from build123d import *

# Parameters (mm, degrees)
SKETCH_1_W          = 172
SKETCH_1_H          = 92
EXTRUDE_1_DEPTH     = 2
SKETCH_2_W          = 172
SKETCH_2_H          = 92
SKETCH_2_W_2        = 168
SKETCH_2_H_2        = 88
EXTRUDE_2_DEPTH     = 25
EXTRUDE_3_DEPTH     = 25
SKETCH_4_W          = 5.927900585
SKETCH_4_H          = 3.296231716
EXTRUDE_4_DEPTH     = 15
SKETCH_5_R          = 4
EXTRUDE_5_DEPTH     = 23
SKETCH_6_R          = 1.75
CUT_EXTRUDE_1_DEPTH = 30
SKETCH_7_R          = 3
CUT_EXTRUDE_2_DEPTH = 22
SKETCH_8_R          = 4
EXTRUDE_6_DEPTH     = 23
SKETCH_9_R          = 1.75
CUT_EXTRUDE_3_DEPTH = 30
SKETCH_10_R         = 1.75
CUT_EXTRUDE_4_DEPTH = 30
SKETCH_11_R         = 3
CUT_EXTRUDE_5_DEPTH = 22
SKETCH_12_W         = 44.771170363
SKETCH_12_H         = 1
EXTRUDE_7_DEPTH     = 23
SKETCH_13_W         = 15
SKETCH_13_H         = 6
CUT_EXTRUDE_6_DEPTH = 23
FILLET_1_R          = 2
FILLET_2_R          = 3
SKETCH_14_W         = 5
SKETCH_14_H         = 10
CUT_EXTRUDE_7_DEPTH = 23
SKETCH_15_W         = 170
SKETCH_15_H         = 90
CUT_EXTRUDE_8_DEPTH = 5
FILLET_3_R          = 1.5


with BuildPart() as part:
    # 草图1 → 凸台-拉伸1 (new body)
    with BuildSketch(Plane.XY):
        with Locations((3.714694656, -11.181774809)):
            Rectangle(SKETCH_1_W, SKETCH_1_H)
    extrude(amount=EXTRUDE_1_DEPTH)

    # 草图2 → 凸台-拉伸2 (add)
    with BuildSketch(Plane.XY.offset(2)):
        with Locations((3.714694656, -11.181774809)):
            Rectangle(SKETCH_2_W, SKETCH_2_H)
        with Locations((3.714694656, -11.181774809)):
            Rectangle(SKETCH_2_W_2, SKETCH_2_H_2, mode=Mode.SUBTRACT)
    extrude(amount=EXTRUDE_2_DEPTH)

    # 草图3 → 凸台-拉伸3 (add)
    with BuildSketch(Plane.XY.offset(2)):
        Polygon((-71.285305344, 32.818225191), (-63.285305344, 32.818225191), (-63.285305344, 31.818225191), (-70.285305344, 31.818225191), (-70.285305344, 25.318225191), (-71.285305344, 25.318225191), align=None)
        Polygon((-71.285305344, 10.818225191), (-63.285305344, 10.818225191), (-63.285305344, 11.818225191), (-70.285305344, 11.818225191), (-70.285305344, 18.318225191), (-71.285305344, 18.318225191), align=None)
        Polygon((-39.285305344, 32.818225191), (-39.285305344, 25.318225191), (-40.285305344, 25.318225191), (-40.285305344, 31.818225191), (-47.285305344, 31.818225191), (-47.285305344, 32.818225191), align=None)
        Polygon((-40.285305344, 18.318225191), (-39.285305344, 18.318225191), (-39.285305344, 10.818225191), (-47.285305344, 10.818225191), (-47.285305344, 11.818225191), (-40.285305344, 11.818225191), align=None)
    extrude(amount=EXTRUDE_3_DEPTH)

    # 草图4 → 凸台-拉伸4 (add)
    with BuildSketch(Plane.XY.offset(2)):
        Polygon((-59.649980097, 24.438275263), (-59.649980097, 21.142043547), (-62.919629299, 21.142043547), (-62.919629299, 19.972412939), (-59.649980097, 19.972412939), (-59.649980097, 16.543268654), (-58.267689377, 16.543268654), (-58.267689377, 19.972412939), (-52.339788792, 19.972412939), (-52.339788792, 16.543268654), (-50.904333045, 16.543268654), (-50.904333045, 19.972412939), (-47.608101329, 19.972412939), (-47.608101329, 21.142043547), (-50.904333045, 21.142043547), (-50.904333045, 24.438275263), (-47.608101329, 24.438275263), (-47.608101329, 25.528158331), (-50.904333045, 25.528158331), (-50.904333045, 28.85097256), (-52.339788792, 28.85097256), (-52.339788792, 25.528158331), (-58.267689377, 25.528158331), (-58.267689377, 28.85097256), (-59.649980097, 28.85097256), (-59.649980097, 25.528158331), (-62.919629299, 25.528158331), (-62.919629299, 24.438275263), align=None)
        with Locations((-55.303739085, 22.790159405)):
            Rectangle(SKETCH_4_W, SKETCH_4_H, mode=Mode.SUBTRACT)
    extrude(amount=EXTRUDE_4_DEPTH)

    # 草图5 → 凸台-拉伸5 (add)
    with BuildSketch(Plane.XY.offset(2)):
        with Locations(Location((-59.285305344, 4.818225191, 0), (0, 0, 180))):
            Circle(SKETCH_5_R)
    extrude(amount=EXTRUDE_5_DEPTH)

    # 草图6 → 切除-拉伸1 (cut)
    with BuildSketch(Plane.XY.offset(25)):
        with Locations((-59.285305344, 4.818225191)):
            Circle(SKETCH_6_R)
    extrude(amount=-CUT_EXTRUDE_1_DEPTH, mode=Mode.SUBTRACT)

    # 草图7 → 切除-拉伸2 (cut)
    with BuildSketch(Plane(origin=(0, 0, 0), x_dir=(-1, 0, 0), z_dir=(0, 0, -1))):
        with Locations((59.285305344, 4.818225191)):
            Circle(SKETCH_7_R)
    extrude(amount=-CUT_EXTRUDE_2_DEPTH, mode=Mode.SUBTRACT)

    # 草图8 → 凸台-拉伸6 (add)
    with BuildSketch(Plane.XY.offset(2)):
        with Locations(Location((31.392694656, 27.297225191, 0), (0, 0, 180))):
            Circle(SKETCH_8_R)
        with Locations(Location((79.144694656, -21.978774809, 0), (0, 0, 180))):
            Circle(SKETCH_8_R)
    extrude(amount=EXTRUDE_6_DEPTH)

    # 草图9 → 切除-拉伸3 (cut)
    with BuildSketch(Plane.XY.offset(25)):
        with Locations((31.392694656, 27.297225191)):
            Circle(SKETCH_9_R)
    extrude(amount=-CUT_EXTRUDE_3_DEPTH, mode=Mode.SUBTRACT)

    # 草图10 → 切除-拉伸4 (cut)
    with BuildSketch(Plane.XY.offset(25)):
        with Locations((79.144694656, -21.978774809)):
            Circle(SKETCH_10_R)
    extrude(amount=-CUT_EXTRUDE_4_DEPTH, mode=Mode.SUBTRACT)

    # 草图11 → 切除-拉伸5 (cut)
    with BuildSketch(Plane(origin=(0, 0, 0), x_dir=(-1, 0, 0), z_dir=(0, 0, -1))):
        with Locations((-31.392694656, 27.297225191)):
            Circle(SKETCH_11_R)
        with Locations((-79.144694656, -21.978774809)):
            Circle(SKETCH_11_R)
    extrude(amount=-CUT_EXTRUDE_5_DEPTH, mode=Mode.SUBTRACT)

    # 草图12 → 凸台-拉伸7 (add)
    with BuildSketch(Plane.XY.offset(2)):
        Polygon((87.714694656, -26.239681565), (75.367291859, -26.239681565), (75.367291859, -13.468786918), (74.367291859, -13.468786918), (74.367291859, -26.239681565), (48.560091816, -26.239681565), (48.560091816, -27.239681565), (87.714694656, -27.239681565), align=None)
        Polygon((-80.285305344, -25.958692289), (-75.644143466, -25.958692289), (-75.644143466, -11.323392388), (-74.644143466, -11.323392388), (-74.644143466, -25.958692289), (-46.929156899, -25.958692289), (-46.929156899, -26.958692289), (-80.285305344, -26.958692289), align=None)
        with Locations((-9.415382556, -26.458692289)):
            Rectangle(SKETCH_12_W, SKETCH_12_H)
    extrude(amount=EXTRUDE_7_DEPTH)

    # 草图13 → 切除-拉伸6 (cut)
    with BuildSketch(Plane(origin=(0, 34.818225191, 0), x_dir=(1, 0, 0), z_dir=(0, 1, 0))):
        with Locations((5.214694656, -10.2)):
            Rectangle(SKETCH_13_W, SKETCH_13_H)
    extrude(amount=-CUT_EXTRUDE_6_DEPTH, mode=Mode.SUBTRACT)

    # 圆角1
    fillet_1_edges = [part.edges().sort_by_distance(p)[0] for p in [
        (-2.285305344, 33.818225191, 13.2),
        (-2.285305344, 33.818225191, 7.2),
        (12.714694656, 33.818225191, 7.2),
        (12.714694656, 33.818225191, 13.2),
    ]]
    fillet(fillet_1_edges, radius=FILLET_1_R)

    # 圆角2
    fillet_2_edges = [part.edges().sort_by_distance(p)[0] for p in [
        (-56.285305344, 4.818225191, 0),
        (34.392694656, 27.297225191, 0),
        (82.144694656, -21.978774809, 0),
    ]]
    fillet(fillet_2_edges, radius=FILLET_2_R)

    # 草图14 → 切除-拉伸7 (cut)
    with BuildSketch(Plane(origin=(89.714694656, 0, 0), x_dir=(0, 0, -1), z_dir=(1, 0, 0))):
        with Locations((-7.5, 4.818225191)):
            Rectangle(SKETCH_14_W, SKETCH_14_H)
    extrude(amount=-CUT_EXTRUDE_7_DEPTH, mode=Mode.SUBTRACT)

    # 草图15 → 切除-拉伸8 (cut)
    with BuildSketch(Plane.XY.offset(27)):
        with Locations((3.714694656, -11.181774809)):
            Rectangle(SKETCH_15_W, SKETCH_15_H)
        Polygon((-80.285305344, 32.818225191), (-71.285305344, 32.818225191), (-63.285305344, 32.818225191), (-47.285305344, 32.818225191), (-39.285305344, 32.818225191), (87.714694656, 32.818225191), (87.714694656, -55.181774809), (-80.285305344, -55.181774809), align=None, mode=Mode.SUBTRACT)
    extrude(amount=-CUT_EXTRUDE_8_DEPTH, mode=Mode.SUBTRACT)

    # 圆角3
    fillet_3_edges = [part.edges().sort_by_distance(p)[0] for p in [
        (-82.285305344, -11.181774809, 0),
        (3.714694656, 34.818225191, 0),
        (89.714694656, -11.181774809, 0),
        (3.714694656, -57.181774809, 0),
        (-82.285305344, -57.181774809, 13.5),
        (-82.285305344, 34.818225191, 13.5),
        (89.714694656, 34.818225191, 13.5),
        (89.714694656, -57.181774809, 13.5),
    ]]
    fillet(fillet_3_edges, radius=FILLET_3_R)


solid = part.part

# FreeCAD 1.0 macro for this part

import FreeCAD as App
import Part
import Sketcher
from FreeCAD import Vector


def edges_at(feature, points):
    """Names of the edges that pass closest to the given points."""
    edges = feature.Shape.Edges
    near = lambda p: min(range(len(edges)), key=lambda i: edges[i].distToShape(Part.Vertex(*p))[0])
    return sorted({f"Edge{near(p) + 1}" for p in points})

doc = App.newDocument("Part")
body = doc.addObject("PartDesign::Body", "Body")

# Sketch on XY plane
sketch1 = body.newObject("Sketcher::SketchObject", "Sketch")
sketch1.AttachmentSupport = (doc.getObject("XY_Plane"), [""])
sketch1.MapMode = "FlatFace"
sketch1.addGeometry(Part.LineSegment(Vector(-82, 35, 0), Vector(-82, -57, 0)), False)
sketch1.addGeometry(Part.LineSegment(Vector(-82, -57, 0), Vector(90, -57, 0)), False)
sketch1.addGeometry(Part.LineSegment(Vector(90, -57, 0), Vector(90, 35, 0)), False)
sketch1.addGeometry(Part.LineSegment(Vector(90, 35, 0), Vector(-82, 35, 0)), False)
sketch1.addConstraint(Sketcher.Constraint("Coincident", 0, 2, 1, 1))
sketch1.addConstraint(Sketcher.Constraint("Coincident", 1, 2, 2, 1))
sketch1.addConstraint(Sketcher.Constraint("Coincident", 2, 2, 3, 1))
sketch1.addConstraint(Sketcher.Constraint("Coincident", 3, 2, 0, 1))
sketch1.addConstraint(Sketcher.Constraint("Vertical", 0))
sketch1.addConstraint(Sketcher.Constraint("Horizontal", 1))
sketch1.addConstraint(Sketcher.Constraint("Vertical", 2))
sketch1.addConstraint(Sketcher.Constraint("Horizontal", 3))
sketch1.addConstraint(Sketcher.Constraint("DistanceX", 1, 1, 1, 2, 172.0))
sketch1.addConstraint(Sketcher.Constraint("DistanceY", 0, 2, 0, 1, 92.0))
sketch1.addConstraint(Sketcher.Constraint("DistanceX", 0, 2, -1, 1, 82.285305))
sketch1.addConstraint(Sketcher.Constraint("DistanceY", 0, 2, -1, 1, 57.181775))
pad1 = body.newObject("PartDesign::Pad", "Pad")
pad1.Profile = sketch1
pad1.Length = 2

# Sketch on XY plane
sketch2 = body.newObject("Sketcher::SketchObject", "Sketch001")
sketch2.AttachmentSupport = (doc.getObject("XY_Plane"), [""])
sketch2.MapMode = "FlatFace"
sketch2.AttachmentOffset = App.Placement(Vector(0, 0, 2), App.Rotation())
sketch2.addGeometry(Part.LineSegment(Vector(-82, 35, 0), Vector(-82, -57, 0)), False)
sketch2.addGeometry(Part.LineSegment(Vector(-82, -57, 0), Vector(90, -57, 0)), False)
sketch2.addGeometry(Part.LineSegment(Vector(90, -57, 0), Vector(90, 35, 0)), False)
sketch2.addGeometry(Part.LineSegment(Vector(90, 35, 0), Vector(-82, 35, 0)), False)
sketch2.addGeometry(Part.LineSegment(Vector(88, -55, 0), Vector(-80, -55, 0)), False)
sketch2.addGeometry(Part.LineSegment(Vector(-80, -55, 0), Vector(-80, 33, 0)), False)
sketch2.addGeometry(Part.LineSegment(Vector(-80, 33, 0), Vector(88, 33, 0)), False)
sketch2.addGeometry(Part.LineSegment(Vector(88, 33, 0), Vector(88, -55, 0)), False)
sketch2.addConstraint(Sketcher.Constraint("Coincident", 0, 2, 1, 1))
sketch2.addConstraint(Sketcher.Constraint("Coincident", 1, 2, 2, 1))
sketch2.addConstraint(Sketcher.Constraint("Coincident", 2, 2, 3, 1))
sketch2.addConstraint(Sketcher.Constraint("Coincident", 3, 2, 0, 1))
sketch2.addConstraint(Sketcher.Constraint("Coincident", 4, 2, 5, 1))
sketch2.addConstraint(Sketcher.Constraint("Coincident", 5, 2, 6, 1))
sketch2.addConstraint(Sketcher.Constraint("Coincident", 6, 2, 7, 1))
sketch2.addConstraint(Sketcher.Constraint("Coincident", 7, 2, 4, 1))
sketch2.addConstraint(Sketcher.Constraint("Vertical", 0))
sketch2.addConstraint(Sketcher.Constraint("Horizontal", 1))
sketch2.addConstraint(Sketcher.Constraint("Vertical", 2))
sketch2.addConstraint(Sketcher.Constraint("Horizontal", 3))
sketch2.addConstraint(Sketcher.Constraint("Horizontal", 4))
sketch2.addConstraint(Sketcher.Constraint("Vertical", 5))
sketch2.addConstraint(Sketcher.Constraint("Horizontal", 6))
sketch2.addConstraint(Sketcher.Constraint("Vertical", 7))
sketch2.addConstraint(Sketcher.Constraint("DistanceX", 1, 1, 1, 2, 172.0))
sketch2.addConstraint(Sketcher.Constraint("DistanceX", 4, 2, 4, 1, 168.0))
sketch2.addConstraint(Sketcher.Constraint("DistanceY", 0, 2, 0, 1, 92.0))
sketch2.addConstraint(Sketcher.Constraint("DistanceY", 5, 1, 5, 2, 88.0))
sketch2.addConstraint(Sketcher.Constraint("DistanceX", 0, 2, 4, 2, 2.0))
sketch2.addConstraint(Sketcher.Constraint("DistanceY", 0, 2, 4, 2, 2.0))
sketch2.addConstraint(Sketcher.Constraint("DistanceX", 0, 2, -1, 1, 82.285305))
sketch2.addConstraint(Sketcher.Constraint("DistanceY", 0, 2, -1, 1, 57.181775))
pad2 = body.newObject("PartDesign::Pad", "Pad001")
pad2.Profile = sketch2
pad2.Length = 25

# Sketch on XY plane
sketch3 = body.newObject("Sketcher::SketchObject", "Sketch002")
sketch3.AttachmentSupport = (doc.getObject("XY_Plane"), [""])
sketch3.MapMode = "FlatFace"
sketch3.AttachmentOffset = App.Placement(Vector(0, 0, 2), App.Rotation())
sketch3.addGeometry(Part.LineSegment(Vector(-63.3, 32.8, 0), Vector(-71.3, 32.8, 0)), False)
sketch3.addGeometry(Part.LineSegment(Vector(-71.3, 32.8, 0), Vector(-71.3, 25.3, 0)), False)
sketch3.addGeometry(Part.LineSegment(Vector(-71.3, 25.3, 0), Vector(-70.3, 25.3, 0)), False)
sketch3.addGeometry(Part.LineSegment(Vector(-70.3, 25.3, 0), Vector(-70.3, 31.8, 0)), False)
sketch3.addGeometry(Part.LineSegment(Vector(-70.3, 31.8, 0), Vector(-63.3, 31.8, 0)), False)
sketch3.addGeometry(Part.LineSegment(Vector(-63.3, 31.8, 0), Vector(-63.3, 32.8, 0)), False)
sketch3.addGeometry(Part.LineSegment(Vector(-71.3, 10.8, 0), Vector(-63.3, 10.8, 0)), False)
sketch3.addGeometry(Part.LineSegment(Vector(-63.3, 10.8, 0), Vector(-63.3, 11.8, 0)), False)
sketch3.addGeometry(Part.LineSegment(Vector(-63.3, 11.8, 0), Vector(-70.3, 11.8, 0)), False)
sketch3.addGeometry(Part.LineSegment(Vector(-70.3, 11.8, 0), Vector(-70.3, 18.3, 0)), False)
sketch3.addGeometry(Part.LineSegment(Vector(-70.3, 18.3, 0), Vector(-71.3, 18.3, 0)), False)
sketch3.addGeometry(Part.LineSegment(Vector(-71.3, 18.3, 0), Vector(-71.3, 10.8, 0)), False)
sketch3.addGeometry(Part.LineSegment(Vector(-39.3, 25.3, 0), Vector(-39.3, 32.8, 0)), False)
sketch3.addGeometry(Part.LineSegment(Vector(-39.3, 32.8, 0), Vector(-47.3, 32.8, 0)), False)
sketch3.addGeometry(Part.LineSegment(Vector(-47.3, 32.8, 0), Vector(-47.3, 31.8, 0)), False)
sketch3.addGeometry(Part.LineSegment(Vector(-47.3, 31.8, 0), Vector(-40.3, 31.8, 0)), False)
sketch3.addGeometry(Part.LineSegment(Vector(-40.3, 31.8, 0), Vector(-40.3, 25.3, 0)), False)
sketch3.addGeometry(Part.LineSegment(Vector(-40.3, 25.3, 0), Vector(-39.3, 25.3, 0)), False)
sketch3.addGeometry(Part.LineSegment(Vector(-39.3, 18.3, 0), Vector(-40.3, 18.3, 0)), False)
sketch3.addGeometry(Part.LineSegment(Vector(-40.3, 18.3, 0), Vector(-40.3, 11.8, 0)), False)
sketch3.addGeometry(Part.LineSegment(Vector(-40.3, 11.8, 0), Vector(-47.3, 11.8, 0)), False)
sketch3.addGeometry(Part.LineSegment(Vector(-47.3, 11.8, 0), Vector(-47.3, 10.8, 0)), False)
sketch3.addGeometry(Part.LineSegment(Vector(-47.3, 10.8, 0), Vector(-39.3, 10.8, 0)), False)
sketch3.addGeometry(Part.LineSegment(Vector(-39.3, 10.8, 0), Vector(-39.3, 18.3, 0)), False)
sketch3.addConstraint(Sketcher.Constraint("Coincident", 0, 2, 1, 1))
sketch3.addConstraint(Sketcher.Constraint("Coincident", 1, 2, 2, 1))
sketch3.addConstraint(Sketcher.Constraint("Coincident", 2, 2, 3, 1))
sketch3.addConstraint(Sketcher.Constraint("Coincident", 3, 2, 4, 1))
sketch3.addConstraint(Sketcher.Constraint("Coincident", 4, 2, 5, 1))
sketch3.addConstraint(Sketcher.Constraint("Coincident", 5, 2, 0, 1))
sketch3.addConstraint(Sketcher.Constraint("Coincident", 6, 2, 7, 1))
sketch3.addConstraint(Sketcher.Constraint("Coincident", 7, 2, 8, 1))
sketch3.addConstraint(Sketcher.Constraint("Coincident", 8, 2, 9, 1))
sketch3.addConstraint(Sketcher.Constraint("Coincident", 9, 2, 10, 1))
sketch3.addConstraint(Sketcher.Constraint("Coincident", 10, 2, 11, 1))
sketch3.addConstraint(Sketcher.Constraint("Coincident", 11, 2, 6, 1))
sketch3.addConstraint(Sketcher.Constraint("Coincident", 12, 2, 13, 1))
sketch3.addConstraint(Sketcher.Constraint("Coincident", 13, 2, 14, 1))
sketch3.addConstraint(Sketcher.Constraint("Coincident", 14, 2, 15, 1))
sketch3.addConstraint(Sketcher.Constraint("Coincident", 15, 2, 16, 1))
sketch3.addConstraint(Sketcher.Constraint("Coincident", 16, 2, 17, 1))
sketch3.addConstraint(Sketcher.Constraint("Coincident", 17, 2, 12, 1))
sketch3.addConstraint(Sketcher.Constraint("Coincident", 18, 2, 19, 1))
sketch3.addConstraint(Sketcher.Constraint("Coincident", 19, 2, 20, 1))
sketch3.addConstraint(Sketcher.Constraint("Coincident", 20, 2, 21, 1))
sketch3.addConstraint(Sketcher.Constraint("Coincident", 21, 2, 22, 1))
sketch3.addConstraint(Sketcher.Constraint("Coincident", 22, 2, 23, 1))
sketch3.addConstraint(Sketcher.Constraint("Coincident", 23, 2, 18, 1))
sketch3.addConstraint(Sketcher.Constraint("Horizontal", 0))
sketch3.addConstraint(Sketcher.Constraint("Vertical", 1))
sketch3.addConstraint(Sketcher.Constraint("Horizontal", 2))
sketch3.addConstraint(Sketcher.Constraint("Vertical", 3))
sketch3.addConstraint(Sketcher.Constraint("Horizontal", 4))
sketch3.addConstraint(Sketcher.Constraint("Vertical", 5))
sketch3.addConstraint(Sketcher.Constraint("Horizontal", 6))
sketch3.addConstraint(Sketcher.Constraint("Vertical", 7))
sketch3.addConstraint(Sketcher.Constraint("Horizontal", 8))
sketch3.addConstraint(Sketcher.Constraint("Vertical", 9))
sketch3.addConstraint(Sketcher.Constraint("Horizontal", 10))
sketch3.addConstraint(Sketcher.Constraint("Vertical", 11))
sketch3.addConstraint(Sketcher.Constraint("Vertical", 12))
sketch3.addConstraint(Sketcher.Constraint("Horizontal", 13))
sketch3.addConstraint(Sketcher.Constraint("Vertical", 14))
sketch3.addConstraint(Sketcher.Constraint("Horizontal", 15))
sketch3.addConstraint(Sketcher.Constraint("Vertical", 16))
sketch3.addConstraint(Sketcher.Constraint("Horizontal", 17))
sketch3.addConstraint(Sketcher.Constraint("Horizontal", 18))
sketch3.addConstraint(Sketcher.Constraint("Vertical", 19))
sketch3.addConstraint(Sketcher.Constraint("Horizontal", 20))
sketch3.addConstraint(Sketcher.Constraint("Vertical", 21))
sketch3.addConstraint(Sketcher.Constraint("Horizontal", 22))
sketch3.addConstraint(Sketcher.Constraint("Vertical", 23))
sketch3.addConstraint(Sketcher.Constraint("Horizontal", 5, 2, 12, 2))
sketch3.addConstraint(Sketcher.Constraint("Horizontal", 4, 2, 14, 2))
sketch3.addConstraint(Sketcher.Constraint("Horizontal", 2, 2, 16, 2))
sketch3.addConstraint(Sketcher.Constraint("Horizontal", 10, 2, 18, 2))
sketch3.addConstraint(Sketcher.Constraint("Horizontal", 8, 2, 19, 2))
sketch3.addConstraint(Sketcher.Constraint("Horizontal", 11, 2, 21, 2))
sketch3.addConstraint(Sketcher.Constraint("Vertical", 5, 2, 6, 2))
sketch3.addConstraint(Sketcher.Constraint("Vertical", 3, 2, 8, 2))
sketch3.addConstraint(Sketcher.Constraint("Vertical", 1, 2, 10, 2))
sketch3.addConstraint(Sketcher.Constraint("Vertical", 16, 2, 18, 2))
sketch3.addConstraint(Sketcher.Constraint("Vertical", 14, 2, 20, 2))
sketch3.addConstraint(Sketcher.Constraint("Vertical", 17, 2, 22, 2))
sketch3.addConstraint(Sketcher.Constraint("Equal", 6, 13))
sketch3.addConstraint(Sketcher.Constraint("Equal", 8, 15))
sketch3.addConstraint(Sketcher.Constraint("Equal", 18, 5))
sketch3.addConstraint(Sketcher.Constraint("Equal", 5, 7))
sketch3.addConstraint(Sketcher.Constraint("Equal", 3, 9))
sketch3.addConstraint(Sketcher.Constraint("DistanceX", 0, 2, 0, 1, 8.0))
sketch3.addConstraint(Sketcher.Constraint("DistanceX", 2, 1, 2, 2, 1.0))
sketch3.addConstraint(Sketcher.Constraint("DistanceY", 1, 2, 1, 1, 7.5))
sketch3.addConstraint(Sketcher.Constraint("DistanceY", 6, 2, 4, 2, 21.0))
sketch3.addConstraint(Sketcher.Constraint("DistanceX", 5, 2, 12, 2, 24.0))
sketch3.addConstraint(Sketcher.Constraint("DistanceX", 0, 2, -1, 1, 71.285305))
sketch3.addConstraint(Sketcher.Constraint("DistanceY", -1, 1, 0, 2, 32.818225))
pad3 = body.newObject("PartDesign::Pad", "Pad002")
pad3.Profile = sketch3
pad3.Length = 25

# Sketch on XY plane
sketch4 = body.newObject("Sketcher::SketchObject", "Sketch003")
sketch4.AttachmentSupport = (doc.getObject("XY_Plane"), [""])
sketch4.MapMode = "FlatFace"
sketch4.AttachmentOffset = App.Placement(Vector(0, 0, 2), App.Rotation())
sketch4.addGeometry(Part.LineSegment(Vector(-59.6, 24.4, 0), Vector(-59.6, 21.1, 0)), False)
sketch4.addGeometry(Part.LineSegment(Vector(-59.6, 21.1, 0), Vector(-62.9, 21.1, 0)), False)
sketch4.addGeometry(Part.LineSegment(Vector(-62.9, 21.1, 0), Vector(-62.9, 20, 0)), False)
sketch4.addGeometry(Part.LineSegment(Vector(-62.9, 20, 0), Vector(-59.6, 20, 0)), False)
sketch4.addGeometry(Part.LineSegment(Vector(-59.6, 20, 0), Vector(-59.6, 16.5, 0)), False)
sketch4.addGeometry(Part.LineSegment(Vector(-59.6, 16.5, 0), Vector(-58.3, 16.5, 0)), False)
sketch4.addGeometry(Part.LineSegment(Vector(-58.3, 16.5, 0), Vector(-58.3, 20, 0)), False)
sketch4.addGeometry(Part.LineSegment(Vector(-58.3, 20, 0), Vector(-52.3, 20, 0)), False)
sketch4.addGeometry(Part.LineSegment(Vector(-52.3, 20, 0), Vector(-52.3, 16.5, 0)), False)
sketch4.addGeometry(Part.LineSegment(Vector(-52.3, 16.5, 0), Vector(-50.9, 16.5, 0)), False)
sketch4.addGeometry(Part.LineSegment(Vector(-50.9, 16.5, 0), Vector(-50.9, 20, 0)), False)
sketch4.addGeometry(Part.LineSegment(Vector(-50.9, 20, 0), Vector(-47.6, 20, 0)), False)
sketch4.addGeometry(Part.LineSegment(Vector(-47.6, 20, 0), Vector(-47.6, 21.1, 0)), False)
sketch4.addGeometry(Part.LineSegment(Vector(-47.6, 21.1, 0), Vector(-50.9, 21.1, 0)), False)
sketch4.addGeometry(Part.LineSegment(Vector(-50.9, 21.1, 0), Vector(-50.9, 24.4, 0)), False)
sketch4.addGeometry(Part.LineSegment(Vector(-50.9, 24.4, 0), Vector(-47.6, 24.4, 0)), False)
sketch4.addGeometry(Part.LineSegment(Vector(-47.6, 24.4, 0), Vector(-47.6, 25.5, 0)), False)
sketch4.addGeometry(Part.LineSegment(Vector(-47.6, 25.5, 0), Vector(-50.9, 25.5, 0)), False)
sketch4.addGeometry(Part.LineSegment(Vector(-50.9, 25.5, 0), Vector(-50.9, 28.9, 0)), False)
sketch4.addGeometry(Part.LineSegment(Vector(-50.9, 28.9, 0), Vector(-52.3, 28.9, 0)), False)
sketch4.addGeometry(Part.LineSegment(Vector(-52.3, 28.9, 0), Vector(-52.3, 25.5, 0)), False)
sketch4.addGeometry(Part.LineSegment(Vector(-52.3, 25.5, 0), Vector(-58.3, 25.5, 0)), False)
sketch4.addGeometry(Part.LineSegment(Vector(-58.3, 25.5, 0), Vector(-58.3, 28.9, 0)), False)
sketch4.addGeometry(Part.LineSegment(Vector(-58.3, 28.9, 0), Vector(-59.6, 28.9, 0)), False)
sketch4.addGeometry(Part.LineSegment(Vector(-59.6, 28.9, 0), Vector(-59.6, 25.5, 0)), False)
sketch4.addGeometry(Part.LineSegment(Vector(-59.6, 25.5, 0), Vector(-62.9, 25.5, 0)), False)
sketch4.addGeometry(Part.LineSegment(Vector(-62.9, 25.5, 0), Vector(-62.9, 24.4, 0)), False)
sketch4.addGeometry(Part.LineSegment(Vector(-62.9, 24.4, 0), Vector(-59.6, 24.4, 0)), False)
sketch4.addGeometry(Part.LineSegment(Vector(-52.3, 21.1, 0), Vector(-58.3, 21.1, 0)), False)
sketch4.addGeometry(Part.LineSegment(Vector(-58.3, 21.1, 0), Vector(-58.3, 24.4, 0)), False)
sketch4.addGeometry(Part.LineSegment(Vector(-58.3, 24.4, 0), Vector(-52.3, 24.4, 0)), False)
sketch4.addGeometry(Part.LineSegment(Vector(-52.3, 24.4, 0), Vector(-52.3, 21.1, 0)), False)
sketch4.addConstraint(Sketcher.Constraint("Coincident", 0, 2, 1, 1))
sketch4.addConstraint(Sketcher.Constraint("Coincident", 1, 2, 2, 1))
sketch4.addConstraint(Sketcher.Constraint("Coincident", 2, 2, 3, 1))
sketch4.addConstraint(Sketcher.Constraint("Coincident", 3, 2, 4, 1))
sketch4.addConstraint(Sketcher.Constraint("Coincident", 4, 2, 5, 1))
sketch4.addConstraint(Sketcher.Constraint("Coincident", 5, 2, 6, 1))
sketch4.addConstraint(Sketcher.Constraint("Coincident", 6, 2, 7, 1))
sketch4.addConstraint(Sketcher.Constraint("Coincident", 7, 2, 8, 1))
sketch4.addConstraint(Sketcher.Constraint("Coincident", 8, 2, 9, 1))
sketch4.addConstraint(Sketcher.Constraint("Coincident", 9, 2, 10, 1))
sketch4.addConstraint(Sketcher.Constraint("Coincident", 10, 2, 11, 1))
sketch4.addConstraint(Sketcher.Constraint("Coincident", 11, 2, 12, 1))
sketch4.addConstraint(Sketcher.Constraint("Coincident", 12, 2, 13, 1))
sketch4.addConstraint(Sketcher.Constraint("Coincident", 13, 2, 14, 1))
sketch4.addConstraint(Sketcher.Constraint("Coincident", 14, 2, 15, 1))
sketch4.addConstraint(Sketcher.Constraint("Coincident", 15, 2, 16, 1))
sketch4.addConstraint(Sketcher.Constraint("Coincident", 16, 2, 17, 1))
sketch4.addConstraint(Sketcher.Constraint("Coincident", 17, 2, 18, 1))
sketch4.addConstraint(Sketcher.Constraint("Coincident", 18, 2, 19, 1))
sketch4.addConstraint(Sketcher.Constraint("Coincident", 19, 2, 20, 1))
sketch4.addConstraint(Sketcher.Constraint("Coincident", 20, 2, 21, 1))
sketch4.addConstraint(Sketcher.Constraint("Coincident", 21, 2, 22, 1))
sketch4.addConstraint(Sketcher.Constraint("Coincident", 22, 2, 23, 1))
sketch4.addConstraint(Sketcher.Constraint("Coincident", 23, 2, 24, 1))
sketch4.addConstraint(Sketcher.Constraint("Coincident", 24, 2, 25, 1))
sketch4.addConstraint(Sketcher.Constraint("Coincident", 25, 2, 26, 1))
sketch4.addConstraint(Sketcher.Constraint("Coincident", 26, 2, 27, 1))
sketch4.addConstraint(Sketcher.Constraint("Coincident", 27, 2, 0, 1))
sketch4.addConstraint(Sketcher.Constraint("Coincident", 28, 2, 29, 1))
sketch4.addConstraint(Sketcher.Constraint("Coincident", 29, 2, 30, 1))
sketch4.addConstraint(Sketcher.Constraint("Coincident", 30, 2, 31, 1))
sketch4.addConstraint(Sketcher.Constraint("Coincident", 31, 2, 28, 1))
sketch4.addConstraint(Sketcher.Constraint("Vertical", 0))
sketch4.addConstraint(Sketcher.Constraint("Horizontal", 1))
sketch4.addConstraint(Sketcher.Constraint("Vertical", 2))
sketch4.addConstraint(Sketcher.Constraint("Horizontal", 3))
sketch4.addConstraint(Sketcher.Constraint("Vertical", 4))
sketch4.addConstraint(Sketcher.Constraint("Horizontal", 5))
sketch4.addConstraint(Sketcher.Constraint("Vertical", 6))
sketch4.addConstraint(Sketcher.Constraint("Horizontal", 7))
sketch4.addConstraint(Sketcher.Constraint("Vertical", 8))
sketch4.addConstraint(Sketcher.Constraint("Horizontal", 9))
sketch4.addConstraint(Sketcher.Constraint("Vertical", 10))
sketch4.addConstraint(Sketcher.Constraint("Horizontal", 11))
sketch4.addConstraint(Sketcher.Constraint("Vertical", 12))
sketch4.addConstraint(Sketcher.Constraint("Horizontal", 13))
sketch4.addConstraint(Sketcher.Constraint("Vertical", 14))
sketch4.addConstraint(Sketcher.Constraint("Horizontal", 15))
sketch4.addConstraint(Sketcher.Constraint("Vertical", 16))
sketch4.addConstraint(Sketcher.Constraint("Horizontal", 17))
sketch4.addConstraint(Sketcher.Constraint("Vertical", 18))
sketch4.addConstraint(Sketcher.Constraint("Horizontal", 19))
sketch4.addConstraint(Sketcher.Constraint("Vertical", 20))
sketch4.addConstraint(Sketcher.Constraint("Horizontal", 21))
sketch4.addConstraint(Sketcher.Constraint("Vertical", 22))
sketch4.addConstraint(Sketcher.Constraint("Horizontal", 23))
sketch4.addConstraint(Sketcher.Constraint("Vertical", 24))
sketch4.addConstraint(Sketcher.Constraint("Horizontal", 25))
sketch4.addConstraint(Sketcher.Constraint("Vertical", 26))
sketch4.addConstraint(Sketcher.Constraint("Horizontal", 27))
sketch4.addConstraint(Sketcher.Constraint("Horizontal", 28))
sketch4.addConstraint(Sketcher.Constraint("Vertical", 29))
sketch4.addConstraint(Sketcher.Constraint("Horizontal", 30))
sketch4.addConstraint(Sketcher.Constraint("Vertical", 31))
sketch4.addConstraint(Sketcher.Constraint("Horizontal", 3, 2, 6, 2))
sketch4.addConstraint(Sketcher.Constraint("Horizontal", 5, 2, 8, 2))
sketch4.addConstraint(Sketcher.Constraint("Horizontal", 7, 2, 10, 2))
sketch4.addConstraint(Sketcher.Constraint("Horizontal", 1, 2, 12, 2))
sketch4.addConstraint(Sketcher.Constraint("Horizontal", 17, 2, 20, 2))
sketch4.addConstraint(Sketcher.Constraint("Horizontal", 19, 2, 22, 2))
sketch4.addConstraint(Sketcher.Constraint("Horizontal", 21, 2, 24, 2))
sketch4.addConstraint(Sketcher.Constraint("Horizontal", 15, 2, 26, 2))
sketch4.addConstraint(Sketcher.Constraint("Horizontal", 13, 2, 28, 2))
sketch4.addConstraint(Sketcher.Constraint("Horizontal", 27, 2, 29, 2))
sketch4.addConstraint(Sketcher.Constraint("Vertical", 0, 2, 3, 2))
sketch4.addConstraint(Sketcher.Constraint("Vertical", 10, 2, 13, 2))
sketch4.addConstraint(Sketcher.Constraint("Vertical", 12, 2, 15, 2))
sketch4.addConstraint(Sketcher.Constraint("Vertical", 14, 2, 17, 2))
sketch4.addConstraint(Sketcher.Constraint("Vertical", 8, 2, 19, 2))
sketch4.addConstraint(Sketcher.Constraint("Vertical", 6, 2, 21, 2))
sketch4.addConstraint(Sketcher.Constraint("Vertical", 4, 2, 23, 2))
sketch4.addConstraint(Sketcher.Constraint("Vertical", 2, 2, 25, 2))
sketch4.addConstraint(Sketcher.Constraint("Vertical", 22, 2, 28, 2))
sketch4.addConstraint(Sketcher.Constraint("Vertical", 20, 2, 30, 2))
sketch4.addConstraint(Sketcher.Constraint("Equal", 17, 0))
sketch4.addConstraint(Sketcher.Constraint("DistanceX", 7, 1, 7, 2, 5.927901))
sketch4.addConstraint(Sketcher.Constraint("DistanceX", 1, 2, 1, 1, 3.269649))
sketch4.addConstraint(Sketcher.Constraint("DistanceX", 5, 1, 5, 2, 1.382291))
sketch4.addConstraint(Sketcher.Constraint("DistanceX", 11, 1, 11, 2, 3.296232))
sketch4.addConstraint(Sketcher.Constraint("DistanceY", 2, 2, 2, 1, 1.169631))
sketch4.addConstraint(Sketcher.Constraint("DistanceX", 11, 2, -1, 1, 47.608101))
sketch4.addConstraint(Sketcher.Constraint("DistanceX", 9, 1, 9, 2, 1.435456))
sketch4.addConstraint(Sketcher.Constraint("DistanceY", 4, 2, 4, 1, 3.429144))
sketch4.addConstraint(Sketcher.Constraint("DistanceY", 16, 1, 16, 2, 1.089883))
sketch4.addConstraint(Sketcher.Constraint("DistanceY", 18, 1, 18, 2, 3.322814))
sketch4.addConstraint(Sketcher.Constraint("DistanceY", -1, 1, 4, 2, 16.543269))
pad4 = body.newObject("PartDesign::Pad", "Pad003")
pad4.Profile = sketch4
pad4.Length = 15

# Sketch on XY plane
sketch5 = body.newObject("Sketcher::SketchObject", "Sketch004")
sketch5.AttachmentSupport = (doc.getObject("XY_Plane"), [""])
sketch5.MapMode = "FlatFace"
sketch5.AttachmentOffset = App.Placement(Vector(0, 0, 2), App.Rotation())
sketch5.addGeometry(Part.Circle(Vector(-59.3, 4.8, 0), Vector(0, 0, 1), 4), False)
sketch5.addConstraint(Sketcher.Constraint("Diameter", 0, 8.0))
sketch5.addConstraint(Sketcher.Constraint("DistanceX", 0, 3, -1, 1, 59.285305))
sketch5.addConstraint(Sketcher.Constraint("DistanceY", -1, 1, 0, 3, 4.818225))
pad5 = body.newObject("PartDesign::Pad", "Pad004")
pad5.Profile = sketch5
pad5.Length = 23

# Sketch on XY plane
sketch6 = body.newObject("Sketcher::SketchObject", "Sketch005")
sketch6.AttachmentSupport = (doc.getObject("XY_Plane"), [""])
sketch6.MapMode = "FlatFace"
sketch6.AttachmentOffset = App.Placement(Vector(0, 0, 25), App.Rotation())
sketch6.addGeometry(Part.Circle(Vector(-59.3, 4.8, 0), Vector(0, 0, 1), 1.8), False)
sketch6.addConstraint(Sketcher.Constraint("Diameter", 0, 3.5))
sketch6.addConstraint(Sketcher.Constraint("DistanceX", 0, 3, -1, 1, 59.285305))
sketch6.addConstraint(Sketcher.Constraint("DistanceY", -1, 1, 0, 3, 4.818225))
pocket1 = body.newObject("PartDesign::Pocket", "Pocket")
pocket1.Profile = sketch6
pocket1.Length = 30

# Sketch on XY plane
sketch7 = body.newObject("Sketcher::SketchObject", "Sketch006")
sketch7.AttachmentSupport = (doc.getObject("XY_Plane"), [""])
sketch7.MapMode = "FlatFace"
sketch7.addGeometry(Part.Circle(Vector(-59.3, 4.8, 0), Vector(0, 0, 1), 3), False)
sketch7.addConstraint(Sketcher.Constraint("Diameter", 0, 6.0))
sketch7.addConstraint(Sketcher.Constraint("DistanceX", 0, 3, -1, 1, 59.285305))
sketch7.addConstraint(Sketcher.Constraint("DistanceY", -1, 1, 0, 3, 4.818225))
pocket2 = body.newObject("PartDesign::Pocket", "Pocket001")
pocket2.Profile = sketch7
pocket2.Length = 22
pocket2.Reversed = True

# Sketch on XY plane
sketch8 = body.newObject("Sketcher::SketchObject", "Sketch007")
sketch8.AttachmentSupport = (doc.getObject("XY_Plane"), [""])
sketch8.MapMode = "FlatFace"
sketch8.AttachmentOffset = App.Placement(Vector(0, 0, 2), App.Rotation())
sketch8.addGeometry(Part.Circle(Vector(31.4, 27.3, 0), Vector(0, 0, 1), 4), False)
sketch8.addGeometry(Part.Circle(Vector(79.1, -22, 0), Vector(0, 0, 1), 4), False)
sketch8.addConstraint(Sketcher.Constraint("Equal", 0, 1))
sketch8.addConstraint(Sketcher.Constraint("Diameter", 0, 8.0))
sketch8.addConstraint(Sketcher.Constraint("DistanceX", 0, 3, 1, 3, 47.752))
sketch8.addConstraint(Sketcher.Constraint("DistanceY", 1, 3, 0, 3, 49.276))
sketch8.addConstraint(Sketcher.Constraint("DistanceX", -1, 1, 0, 3, 31.392695))
sketch8.addConstraint(Sketcher.Constraint("DistanceY", -1, 1, 0, 3, 27.297225))
pad6 = body.newObject("PartDesign::Pad", "Pad005")
pad6.Profile = sketch8
pad6.Length = 23

# Sketch on XY plane
sketch9 = body.newObject("Sketcher::SketchObject", "Sketch008")
sketch9.AttachmentSupport = (doc.getObject("XY_Plane"), [""])
sketch9.MapMode = "FlatFace"
sketch9.AttachmentOffset = App.Placement(Vector(0, 0, 25), App.Rotation())
sketch9.addGeometry(Part.Circle(Vector(31.4, 27.3, 0), Vector(0, 0, 1), 1.8), False)
sketch9.addConstraint(Sketcher.Constraint("Diameter", 0, 3.5))
sketch9.addConstraint(Sketcher.Constraint("DistanceX", -1, 1, 0, 3, 31.392695))
sketch9.addConstraint(Sketcher.Constraint("DistanceY", -1, 1, 0, 3, 27.297225))
pocket3 = body.newObject("PartDesign::Pocket", "Pocket002")
pocket3.Profile = sketch9
pocket3.Length = 30

# Sketch on XY plane
sketch10 = body.newObject("Sketcher::SketchObject", "Sketch009")
sketch10.AttachmentSupport = (doc.getObject("XY_Plane"), [""])
sketch10.MapMode = "FlatFace"
sketch10.AttachmentOffset = App.Placement(Vector(0, 0, 25), App.Rotation())
sketch10.addGeometry(Part.Circle(Vector(79.1, -22, 0), Vector(0, 0, 1), 1.8), False)
sketch10.addConstraint(Sketcher.Constraint("Diameter", 0, 3.5))
sketch10.addConstraint(Sketcher.Constraint("DistanceX", -1, 1, 0, 3, 79.144695))
sketch10.addConstraint(Sketcher.Constraint("DistanceY", 0, 3, -1, 1, 21.978775))
pocket4 = body.newObject("PartDesign::Pocket", "Pocket003")
pocket4.Profile = sketch10
pocket4.Length = 30

# Sketch on XY plane
sketch11 = body.newObject("Sketcher::SketchObject", "Sketch010")
sketch11.AttachmentSupport = (doc.getObject("XY_Plane"), [""])
sketch11.MapMode = "FlatFace"
sketch11.addGeometry(Part.Circle(Vector(31.4, 27.3, 0), Vector(0, 0, 1), 3), False)
sketch11.addGeometry(Part.Circle(Vector(79.1, -22, 0), Vector(0, 0, 1), 3), False)
sketch11.addConstraint(Sketcher.Constraint("Equal", 0, 1))
sketch11.addConstraint(Sketcher.Constraint("Diameter", 0, 6.0))
sketch11.addConstraint(Sketcher.Constraint("DistanceX", 0, 3, 1, 3, 47.752))
sketch11.addConstraint(Sketcher.Constraint("DistanceY", 1, 3, 0, 3, 49.276))
sketch11.addConstraint(Sketcher.Constraint("DistanceX", -1, 1, 0, 3, 31.392695))
sketch11.addConstraint(Sketcher.Constraint("DistanceY", -1, 1, 0, 3, 27.297225))
pocket5 = body.newObject("PartDesign::Pocket", "Pocket004")
pocket5.Profile = sketch11
pocket5.Length = 22
pocket5.Reversed = True

# Sketch on XY plane
sketch12 = body.newObject("Sketcher::SketchObject", "Sketch011")
sketch12.AttachmentSupport = (doc.getObject("XY_Plane"), [""])
sketch12.MapMode = "FlatFace"
sketch12.AttachmentOffset = App.Placement(Vector(0, 0, 2), App.Rotation())
sketch12.addGeometry(Part.LineSegment(Vector(87.7, -26.2, 0), Vector(75.4, -26.2, 0)), False)
sketch12.addGeometry(Part.LineSegment(Vector(75.4, -26.2, 0), Vector(75.4, -13.5, 0)), False)
sketch12.addGeometry(Part.LineSegment(Vector(75.4, -13.5, 0), Vector(74.4, -13.5, 0)), False)
sketch12.addGeometry(Part.LineSegment(Vector(74.4, -13.5, 0), Vector(74.4, -26.2, 0)), False)
sketch12.addGeometry(Part.LineSegment(Vector(74.4, -26.2, 0), Vector(48.6, -26.2, 0)), False)
sketch12.addGeometry(Part.LineSegment(Vector(48.6, -26.2, 0), Vector(48.6, -27.2, 0)), False)
sketch12.addGeometry(Part.LineSegment(Vector(48.6, -27.2, 0), Vector(87.7, -27.2, 0)), False)
sketch12.addGeometry(Part.LineSegment(Vector(87.7, -27.2, 0), Vector(87.7, -26.2, 0)), False)
sketch12.addGeometry(Part.LineSegment(Vector(-75.6, -26, 0), Vector(-80.3, -26, 0)), False)
sketch12.addGeometry(Part.LineSegment(Vector(-80.3, -26, 0), Vector(-80.3, -27, 0)), False)
sketch12.addGeometry(Part.LineSegment(Vector(-80.3, -27, 0), Vector(-46.9, -27, 0)), False)
sketch12.addGeometry(Part.LineSegment(Vector(-46.9, -27, 0), Vector(-46.9, -26, 0)), False)
sketch12.addGeometry(Part.LineSegment(Vector(-46.9, -26, 0), Vector(-74.6, -26, 0)), False)
sketch12.addGeometry(Part.LineSegment(Vector(-74.6, -26, 0), Vector(-74.6, -11.3, 0)), False)
sketch12.addGeometry(Part.LineSegment(Vector(-74.6, -11.3, 0), Vector(-75.6, -11.3, 0)), False)
sketch12.addGeometry(Part.LineSegment(Vector(-75.6, -11.3, 0), Vector(-75.6, -26, 0)), False)
sketch12.addGeometry(Part.LineSegment(Vector(-31.8, -26, 0), Vector(-31.8, -27, 0)), False)
sketch12.addGeometry(Part.LineSegment(Vector(-31.8, -27, 0), Vector(13, -27, 0)), False)
sketch12.addGeometry(Part.LineSegment(Vector(13, -27, 0), Vector(13, -26, 0)), False)
sketch12.addGeometry(Part.LineSegment(Vector(13, -26, 0), Vector(-31.8, -26, 0)), False)
sketch12.addConstraint(Sketcher.Constraint("Coincident", 0, 2, 1, 1))
sketch12.addConstraint(Sketcher.Constraint("Coincident", 1, 2, 2, 1))
sketch12.addConstraint(Sketcher.Constraint("Coincident", 2, 2, 3, 1))
sketch12.addConstraint(Sketcher.Constraint("Coincident", 3, 2, 4, 1))
sketch12.addConstraint(Sketcher.Constraint("Coincident", 4, 2, 5, 1))
sketch12.addConstraint(Sketcher.Constraint("Coincident", 5, 2, 6, 1))
sketch12.addConstraint(Sketcher.Constraint("Coincident", 6, 2, 7, 1))
sketch12.addConstraint(Sketcher.Constraint("Coincident", 7, 2, 0, 1))
sketch12.addConstraint(Sketcher.Constraint("Coincident", 8, 2, 9, 1))
sketch12.addConstraint(Sketcher.Constraint("Coincident", 9, 2, 10, 1))
sketch12.addConstraint(Sketcher.Constraint("Coincident", 10, 2, 11, 1))
sketch12.addConstraint(Sketcher.Constraint("Coincident", 11, 2, 12, 1))
sketch12.addConstraint(Sketcher.Constraint("Coincident", 12, 2, 13, 1))
sketch12.addConstraint(Sketcher.Constraint("Coincident", 13, 2, 14, 1))
sketch12.addConstraint(Sketcher.Constraint("Coincident", 14, 2, 15, 1))
sketch12.addConstraint(Sketcher.Constraint("Coincident", 15, 2, 8, 1))
sketch12.addConstraint(Sketcher.Constraint("Coincident", 16, 2, 17, 1))
sketch12.addConstraint(Sketcher.Constraint("Coincident", 17, 2, 18, 1))
sketch12.addConstraint(Sketcher.Constraint("Coincident", 18, 2, 19, 1))
sketch12.addConstraint(Sketcher.Constraint("Coincident", 19, 2, 16, 1))
sketch12.addConstraint(Sketcher.Constraint("Horizontal", 0))
sketch12.addConstraint(Sketcher.Constraint("Vertical", 1))
sketch12.addConstraint(Sketcher.Constraint("Horizontal", 2))
sketch12.addConstraint(Sketcher.Constraint("Vertical", 3))
sketch12.addConstraint(Sketcher.Constraint("Horizontal", 4))
sketch12.addConstraint(Sketcher.Constraint("Vertical", 5))
sketch12.addConstraint(Sketcher.Constraint("Horizontal", 6))
sketch12.addConstraint(Sketcher.Constraint("Vertical", 7))
sketch12.addConstraint(Sketcher.Constraint("Horizontal", 8))
sketch12.addConstraint(Sketcher.Constraint("Vertical", 9))
sketch12.addConstraint(Sketcher.Constraint("Horizontal", 10))
sketch12.addConstraint(Sketcher.Constraint("Vertical", 11))
sketch12.addConstraint(Sketcher.Constraint("Horizontal", 12))
sketch12.addConstraint(Sketcher.Constraint("Vertical", 13))
sketch12.addConstraint(Sketcher.Constraint("Horizontal", 14))
sketch12.addConstraint(Sketcher.Constraint("Vertical", 15))
sketch12.addConstraint(Sketcher.Constraint("Vertical", 16))
sketch12.addConstraint(Sketcher.Constraint("Horizontal", 17))
sketch12.addConstraint(Sketcher.Constraint("Vertical", 18))
sketch12.addConstraint(Sketcher.Constraint("Horizontal", 19))
sketch12.addConstraint(Sketcher.Constraint("Horizontal", 0, 2, 3, 2))
sketch12.addConstraint(Sketcher.Constraint("Horizontal", 8, 2, 11, 2))
sketch12.addConstraint(Sketcher.Constraint("Horizontal", 10, 2, 16, 2))
sketch12.addConstraint(Sketcher.Constraint("Horizontal", 15, 2, 18, 2))
sketch12.addConstraint(Sketcher.Constraint("Equal", 2, 14))
sketch12.addConstraint(Sketcher.Constraint("Equal", 14, 5))
sketch12.addConstraint(Sketcher.Constraint("Equal", 7, 9))
sketch12.addConstraint(Sketcher.Constraint("DistanceX", 2, 2, 2, 1, 1.0))
sketch12.addConstraint(Sketcher.Constraint("DistanceX", 4, 2, 4, 1, 25.8072))
sketch12.addConstraint(Sketcher.Constraint("DistanceY", 13, 1, 13, 2, 14.6353))
sketch12.addConstraint(Sketcher.Constraint("DistanceX", 8, 2, 8, 1, 4.641162))
sketch12.addConstraint(Sketcher.Constraint("DistanceX", 10, 1, 10, 2, 33.356148))
sketch12.addConstraint(Sketcher.Constraint("DistanceX", 17, 1, 17, 2, 44.77117))
sketch12.addConstraint(Sketcher.Constraint("DistanceX", 0, 2, 0, 1, 12.347403))
sketch12.addConstraint(Sketcher.Constraint("DistanceY", 1, 1, 1, 2, 12.770895))
sketch12.addConstraint(Sketcher.Constraint("DistanceX", -1, 1, 0, 2, 75.367292))
sketch12.addConstraint(Sketcher.Constraint("DistanceY", 0, 2, -1, 1, 26.239682))
sketch12.addConstraint(Sketcher.Constraint("DistanceY", 4, 2, 8, 2, 0.280989))
sketch12.addConstraint(Sketcher.Constraint("DistanceX", 10, 2, 5, 2, 95.489249))
sketch12.addConstraint(Sketcher.Constraint("DistanceX", 10, 2, 16, 2, 15.128189))
pad7 = body.newObject("PartDesign::Pad", "Pad006")
pad7.Profile = sketch12
pad7.Length = 23

# Sketch on XZ plane
sketch13 = body.newObject("Sketcher::SketchObject", "Sketch012")
sketch13.AttachmentSupport = (doc.getObject("XZ_Plane"), [""])
sketch13.MapMode = "FlatFace"
sketch13.AttachmentOffset = App.Placement(Vector(0, 0, -34.818225), App.Rotation())
sketch13.addGeometry(Part.LineSegment(Vector(-2, 7, 0), Vector(-2, 13, 0)), False)
sketch13.addGeometry(Part.LineSegment(Vector(-2, 13, 0), Vector(13, 13, 0)), False)
sketch13.addGeometry(Part.LineSegment(Vector(13, 13, 0), Vector(13, 7, 0)), False)
sketch13.addGeometry(Part.LineSegment(Vector(13, 7, 0), Vector(-2, 7, 0)), False)
sketch13.addConstraint(Sketcher.Constraint("Coincident", 0, 2, 1, 1))
sketch13.addConstraint(Sketcher.Constraint("Coincident", 1, 2, 2, 1))
sketch13.addConstraint(Sketcher.Constraint("Coincident", 2, 2, 3, 1))
sketch13.addConstraint(Sketcher.Constraint("Coincident", 3, 2, 0, 1))
sketch13.addConstraint(Sketcher.Constraint("Vertical", 0))
sketch13.addConstraint(Sketcher.Constraint("Horizontal", 1))
sketch13.addConstraint(Sketcher.Constraint("Vertical", 2))
sketch13.addConstraint(Sketcher.Constraint("Horizontal", 3))
sketch13.addConstraint(Sketcher.Constraint("DistanceX", 1, 1, 1, 2, 15.0))
sketch13.addConstraint(Sketcher.Constraint("DistanceY", 0, 1, 0, 2, 6.0))
sketch13.addConstraint(Sketcher.Constraint("DistanceY", -1, 1, 0, 2, 13.2))
sketch13.addConstraint(Sketcher.Constraint("DistanceX", 0, 2, -1, 1, 2.285305))
pocket6 = body.newObject("PartDesign::Pocket", "Pocket005")
pocket6.Profile = sketch13
pocket6.Length = 23
pocket6.Reversed = True
doc.recompute()

fillet = body.newObject("PartDesign::Fillet", "Fillet")
fillet.Base = (pocket6, edges_at(pocket6, [
    (-2.285, 33.818, 13.2),
    (-2.285, 33.818, 7.2),
    (12.715, 33.818, 7.2),
    (12.715, 33.818, 13.2),
]))
fillet.Radius = 2
doc.recompute()

fillet2 = body.newObject("PartDesign::Fillet", "Fillet001")
fillet2.Base = (fillet, edges_at(fillet, [(-56.285, 4.818, 0), (34.393, 27.297, 0), (82.145, -21.979, 0)]))
fillet2.Radius = 3

# Sketch on YZ plane
sketch14 = body.newObject("Sketcher::SketchObject", "Sketch013")
sketch14.AttachmentSupport = (doc.getObject("YZ_Plane"), [""])
sketch14.MapMode = "FlatFace"
sketch14.AttachmentOffset = App.Placement(Vector(0, 0, 89.714695), App.Rotation())
sketch14.addGeometry(Part.LineSegment(Vector(10, 10, 0), Vector(0, 10, 0)), False)
sketch14.addGeometry(Part.LineSegment(Vector(0, 10, 0), Vector(0, 5, 0)), False)
sketch14.addGeometry(Part.LineSegment(Vector(0, 5, 0), Vector(10, 5, 0)), False)
sketch14.addGeometry(Part.LineSegment(Vector(10, 5, 0), Vector(10, 10, 0)), False)
sketch14.addConstraint(Sketcher.Constraint("Coincident", 0, 2, 1, 1))
sketch14.addConstraint(Sketcher.Constraint("Coincident", 1, 2, 2, 1))
sketch14.addConstraint(Sketcher.Constraint("Coincident", 2, 2, 3, 1))
sketch14.addConstraint(Sketcher.Constraint("Coincident", 3, 2, 0, 1))
sketch14.addConstraint(Sketcher.Constraint("Horizontal", 0))
sketch14.addConstraint(Sketcher.Constraint("Vertical", 1))
sketch14.addConstraint(Sketcher.Constraint("Horizontal", 2))
sketch14.addConstraint(Sketcher.Constraint("Vertical", 3))
sketch14.addConstraint(Sketcher.Constraint("DistanceX", 0, 2, 0, 1, 10.0))
sketch14.addConstraint(Sketcher.Constraint("DistanceY", 1, 2, 1, 1, 5.0))
sketch14.addConstraint(Sketcher.Constraint("DistanceY", -1, 1, 0, 2, 10.0))
sketch14.addConstraint(Sketcher.Constraint("DistanceX", 0, 2, -1, 1, 0.181775))
pocket7 = body.newObject("PartDesign::Pocket", "Pocket006")
pocket7.Profile = sketch14
pocket7.Length = 23

# Sketch on XY plane
sketch15 = body.newObject("Sketcher::SketchObject", "Sketch014")
sketch15.AttachmentSupport = (doc.getObject("XY_Plane"), [""])
sketch15.MapMode = "FlatFace"
sketch15.AttachmentOffset = App.Placement(Vector(0, 0, 27), App.Rotation())
sketch15.addGeometry(Part.LineSegment(Vector(-81, 34, 0), Vector(-81, -56, 0)), False)
sketch15.addGeometry(Part.LineSegment(Vector(-81, -56, 0), Vector(89, -56, 0)), False)
sketch15.addGeometry(Part.LineSegment(Vector(89, -56, 0), Vector(89, 34, 0)), False)
sketch15.addGeometry(Part.LineSegment(Vector(89, 34, 0), Vector(-81, 34, 0)), False)
sketch15.addGeometry(Part.LineSegment(Vector(-80, -55, 0), Vector(-80, 33, 0)), False)
sketch15.addGeometry(Part.LineSegment(Vector(-80, 33, 0), Vector(88, 33, 0)), False)
sketch15.addGeometry(Part.LineSegment(Vector(88, 33, 0), Vector(88, -55, 0)), False)
sketch15.addGeometry(Part.LineSegment(Vector(88, -55, 0), Vector(-80, -55, 0)), False)
sketch15.addConstraint(Sketcher.Constraint("Coincident", 0, 2, 1, 1))
sketch15.addConstraint(Sketcher.Constraint("Coincident", 1, 2, 2, 1))
sketch15.addConstraint(Sketcher.Constraint("Coincident", 2, 2, 3, 1))
sketch15.addConstraint(Sketcher.Constraint("Coincident", 3, 2, 0, 1))
sketch15.addConstraint(Sketcher.Constraint("Coincident", 4, 2, 5, 1))
sketch15.addConstraint(Sketcher.Constraint("Coincident", 5, 2, 6, 1))
sketch15.addConstraint(Sketcher.Constraint("Coincident", 6, 2, 7, 1))
sketch15.addConstraint(Sketcher.Constraint("Coincident", 7, 2, 4, 1))
sketch15.addConstraint(Sketcher.Constraint("Vertical", 0))
sketch15.addConstraint(Sketcher.Constraint("Horizontal", 1))
sketch15.addConstraint(Sketcher.Constraint("Vertical", 2))
sketch15.addConstraint(Sketcher.Constraint("Horizontal", 3))
sketch15.addConstraint(Sketcher.Constraint("Vertical", 4))
sketch15.addConstraint(Sketcher.Constraint("Horizontal", 5))
sketch15.addConstraint(Sketcher.Constraint("Vertical", 6))
sketch15.addConstraint(Sketcher.Constraint("Horizontal", 7))
sketch15.addConstraint(Sketcher.Constraint("DistanceX", 1, 1, 1, 2, 170.0))
sketch15.addConstraint(Sketcher.Constraint("DistanceX", 5, 1, 5, 2, 168.0))
sketch15.addConstraint(Sketcher.Constraint("DistanceY", 0, 2, 0, 1, 90.0))
sketch15.addConstraint(Sketcher.Constraint("DistanceY", 4, 1, 4, 2, 88.0))
sketch15.addConstraint(Sketcher.Constraint("DistanceX", 3, 2, 4, 2, 1.0))
sketch15.addConstraint(Sketcher.Constraint("DistanceY", 4, 2, 3, 2, 1.0))
sketch15.addConstraint(Sketcher.Constraint("DistanceX", 0, 2, -1, 1, 81.285305))
sketch15.addConstraint(Sketcher.Constraint("DistanceY", 0, 2, -1, 1, 56.181775))
pocket8 = body.newObject("PartDesign::Pocket", "Pocket007")
pocket8.Profile = sketch15
pocket8.Length = 5
doc.recompute()

fillet3 = body.newObject("PartDesign::Fillet", "Fillet002")
fillet3.Base = (pocket8, edges_at(pocket8, [
    (-82.285, -11.182, 0),
    (3.715, 34.818, 0),
    (89.715, -11.182, 0),
    (3.715, -57.182, 0),
    (-82.285, -57.182, 13.5),
    (-82.285, 34.818, 13.5),
    (89.715, 34.818, 13.5),
    (89.715, -57.182, 13.5),
]))
fillet3.Radius = 1.5

doc.recompute()
